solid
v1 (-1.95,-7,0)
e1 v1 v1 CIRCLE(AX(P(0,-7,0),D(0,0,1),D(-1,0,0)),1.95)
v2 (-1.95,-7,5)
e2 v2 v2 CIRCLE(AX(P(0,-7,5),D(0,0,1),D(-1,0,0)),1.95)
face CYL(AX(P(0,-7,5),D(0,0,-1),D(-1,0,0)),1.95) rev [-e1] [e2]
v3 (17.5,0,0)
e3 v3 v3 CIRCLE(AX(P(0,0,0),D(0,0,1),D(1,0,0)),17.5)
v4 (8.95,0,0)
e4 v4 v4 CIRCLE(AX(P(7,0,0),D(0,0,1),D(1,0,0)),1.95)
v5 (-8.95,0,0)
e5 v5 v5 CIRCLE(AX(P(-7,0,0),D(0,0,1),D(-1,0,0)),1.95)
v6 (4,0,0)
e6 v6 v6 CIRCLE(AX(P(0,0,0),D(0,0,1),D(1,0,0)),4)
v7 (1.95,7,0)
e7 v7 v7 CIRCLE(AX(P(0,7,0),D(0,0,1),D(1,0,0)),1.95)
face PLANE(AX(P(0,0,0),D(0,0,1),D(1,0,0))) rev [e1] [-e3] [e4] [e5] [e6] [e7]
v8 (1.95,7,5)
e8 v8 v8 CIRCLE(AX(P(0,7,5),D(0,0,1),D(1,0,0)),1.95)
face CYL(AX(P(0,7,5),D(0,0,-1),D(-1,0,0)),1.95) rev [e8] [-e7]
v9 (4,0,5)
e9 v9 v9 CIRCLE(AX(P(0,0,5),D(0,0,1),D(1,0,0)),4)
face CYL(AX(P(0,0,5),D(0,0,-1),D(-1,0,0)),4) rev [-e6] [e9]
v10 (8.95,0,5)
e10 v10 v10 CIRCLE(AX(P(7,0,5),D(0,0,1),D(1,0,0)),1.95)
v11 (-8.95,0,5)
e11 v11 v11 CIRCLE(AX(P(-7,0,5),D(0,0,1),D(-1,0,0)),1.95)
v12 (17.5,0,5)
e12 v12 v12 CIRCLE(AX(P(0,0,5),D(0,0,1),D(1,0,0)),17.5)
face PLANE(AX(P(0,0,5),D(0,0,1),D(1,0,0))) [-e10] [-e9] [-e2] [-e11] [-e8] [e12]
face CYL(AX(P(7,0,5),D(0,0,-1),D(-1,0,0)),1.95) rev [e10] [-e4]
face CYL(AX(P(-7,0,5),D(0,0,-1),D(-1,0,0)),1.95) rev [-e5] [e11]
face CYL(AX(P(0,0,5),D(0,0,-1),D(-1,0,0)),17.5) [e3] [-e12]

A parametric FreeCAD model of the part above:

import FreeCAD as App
import Part
import Sketcher
from FreeCAD import Vector
Q = App.Units.Quantity

doc = App.newDocument("Part")
body = doc.addObject("PartDesign::Body", "Body")

# Sketch on XY plane
sketch1 = body.newObject("Sketcher::SketchObject", "Sketch")
sketch1.AttachmentSupport = (doc.getObject("XY_Plane"), [""])
sketch1.MapMode = "FlatFace"
sketch1.addGeometry([
    Part.Circle(Vector(0, 0, 0), Vector(0, 0, 1), 17.5),  # 0
    Part.Circle(Vector(0, -7, 0), Vector(0, 0, 1), 1.95),  # 1
    Part.Circle(Vector(-7, 0, 0), Vector(0, 0, 1), 1.95),  # 2
    Part.Circle(Vector(0, 0, 0), Vector(0, 0, 1), 4),  # 3
    Part.Circle(Vector(7, 0, 0), Vector(0, 0, 1), 1.95),  # 4
    Part.Circle(Vector(0, 7, 0), Vector(0, 0, 1), 1.95),  # 5
], False)
sketch1.addConstraint([
    Sketcher.Constraint("Coincident", 0, 3, -1, 1),
    Sketcher.Constraint("Coincident", 3, 3, -1, 1),
    Sketcher.Constraint("Equal", 1, 2),
    Sketcher.Constraint("Equal", 2, 4),
    Sketcher.Constraint("Equal", 4, 5),
    Sketcher.Constraint("Symmetric", 2, 3, 4, 3, -1, 1),
    Sketcher.Constraint("Symmetric", 1, 3, 5, 3, -1, 1),
    Sketcher.Constraint("PointOnObject", 1, 3, -2),
    Sketcher.Constraint("PointOnObject", 2, 3, -1),
    Sketcher.Constraint("Diameter", 0, Q("35 mm")),
    Sketcher.Constraint("Diameter", 3, Q("8 mm")),
    Sketcher.Constraint("Diameter", 1, Q("3.9 mm")),
    Sketcher.Constraint("DistanceY", 1, 3, -1, 1, Q("7 mm")),
    Sketcher.Constraint("DistanceX", 2, 3, -1, 1, Q("7 mm")),
])
pad1 = body.newObject("PartDesign::Pad", "Pad")
pad1.Profile = sketch1
pad1.Length = 5

doc.recompute()
